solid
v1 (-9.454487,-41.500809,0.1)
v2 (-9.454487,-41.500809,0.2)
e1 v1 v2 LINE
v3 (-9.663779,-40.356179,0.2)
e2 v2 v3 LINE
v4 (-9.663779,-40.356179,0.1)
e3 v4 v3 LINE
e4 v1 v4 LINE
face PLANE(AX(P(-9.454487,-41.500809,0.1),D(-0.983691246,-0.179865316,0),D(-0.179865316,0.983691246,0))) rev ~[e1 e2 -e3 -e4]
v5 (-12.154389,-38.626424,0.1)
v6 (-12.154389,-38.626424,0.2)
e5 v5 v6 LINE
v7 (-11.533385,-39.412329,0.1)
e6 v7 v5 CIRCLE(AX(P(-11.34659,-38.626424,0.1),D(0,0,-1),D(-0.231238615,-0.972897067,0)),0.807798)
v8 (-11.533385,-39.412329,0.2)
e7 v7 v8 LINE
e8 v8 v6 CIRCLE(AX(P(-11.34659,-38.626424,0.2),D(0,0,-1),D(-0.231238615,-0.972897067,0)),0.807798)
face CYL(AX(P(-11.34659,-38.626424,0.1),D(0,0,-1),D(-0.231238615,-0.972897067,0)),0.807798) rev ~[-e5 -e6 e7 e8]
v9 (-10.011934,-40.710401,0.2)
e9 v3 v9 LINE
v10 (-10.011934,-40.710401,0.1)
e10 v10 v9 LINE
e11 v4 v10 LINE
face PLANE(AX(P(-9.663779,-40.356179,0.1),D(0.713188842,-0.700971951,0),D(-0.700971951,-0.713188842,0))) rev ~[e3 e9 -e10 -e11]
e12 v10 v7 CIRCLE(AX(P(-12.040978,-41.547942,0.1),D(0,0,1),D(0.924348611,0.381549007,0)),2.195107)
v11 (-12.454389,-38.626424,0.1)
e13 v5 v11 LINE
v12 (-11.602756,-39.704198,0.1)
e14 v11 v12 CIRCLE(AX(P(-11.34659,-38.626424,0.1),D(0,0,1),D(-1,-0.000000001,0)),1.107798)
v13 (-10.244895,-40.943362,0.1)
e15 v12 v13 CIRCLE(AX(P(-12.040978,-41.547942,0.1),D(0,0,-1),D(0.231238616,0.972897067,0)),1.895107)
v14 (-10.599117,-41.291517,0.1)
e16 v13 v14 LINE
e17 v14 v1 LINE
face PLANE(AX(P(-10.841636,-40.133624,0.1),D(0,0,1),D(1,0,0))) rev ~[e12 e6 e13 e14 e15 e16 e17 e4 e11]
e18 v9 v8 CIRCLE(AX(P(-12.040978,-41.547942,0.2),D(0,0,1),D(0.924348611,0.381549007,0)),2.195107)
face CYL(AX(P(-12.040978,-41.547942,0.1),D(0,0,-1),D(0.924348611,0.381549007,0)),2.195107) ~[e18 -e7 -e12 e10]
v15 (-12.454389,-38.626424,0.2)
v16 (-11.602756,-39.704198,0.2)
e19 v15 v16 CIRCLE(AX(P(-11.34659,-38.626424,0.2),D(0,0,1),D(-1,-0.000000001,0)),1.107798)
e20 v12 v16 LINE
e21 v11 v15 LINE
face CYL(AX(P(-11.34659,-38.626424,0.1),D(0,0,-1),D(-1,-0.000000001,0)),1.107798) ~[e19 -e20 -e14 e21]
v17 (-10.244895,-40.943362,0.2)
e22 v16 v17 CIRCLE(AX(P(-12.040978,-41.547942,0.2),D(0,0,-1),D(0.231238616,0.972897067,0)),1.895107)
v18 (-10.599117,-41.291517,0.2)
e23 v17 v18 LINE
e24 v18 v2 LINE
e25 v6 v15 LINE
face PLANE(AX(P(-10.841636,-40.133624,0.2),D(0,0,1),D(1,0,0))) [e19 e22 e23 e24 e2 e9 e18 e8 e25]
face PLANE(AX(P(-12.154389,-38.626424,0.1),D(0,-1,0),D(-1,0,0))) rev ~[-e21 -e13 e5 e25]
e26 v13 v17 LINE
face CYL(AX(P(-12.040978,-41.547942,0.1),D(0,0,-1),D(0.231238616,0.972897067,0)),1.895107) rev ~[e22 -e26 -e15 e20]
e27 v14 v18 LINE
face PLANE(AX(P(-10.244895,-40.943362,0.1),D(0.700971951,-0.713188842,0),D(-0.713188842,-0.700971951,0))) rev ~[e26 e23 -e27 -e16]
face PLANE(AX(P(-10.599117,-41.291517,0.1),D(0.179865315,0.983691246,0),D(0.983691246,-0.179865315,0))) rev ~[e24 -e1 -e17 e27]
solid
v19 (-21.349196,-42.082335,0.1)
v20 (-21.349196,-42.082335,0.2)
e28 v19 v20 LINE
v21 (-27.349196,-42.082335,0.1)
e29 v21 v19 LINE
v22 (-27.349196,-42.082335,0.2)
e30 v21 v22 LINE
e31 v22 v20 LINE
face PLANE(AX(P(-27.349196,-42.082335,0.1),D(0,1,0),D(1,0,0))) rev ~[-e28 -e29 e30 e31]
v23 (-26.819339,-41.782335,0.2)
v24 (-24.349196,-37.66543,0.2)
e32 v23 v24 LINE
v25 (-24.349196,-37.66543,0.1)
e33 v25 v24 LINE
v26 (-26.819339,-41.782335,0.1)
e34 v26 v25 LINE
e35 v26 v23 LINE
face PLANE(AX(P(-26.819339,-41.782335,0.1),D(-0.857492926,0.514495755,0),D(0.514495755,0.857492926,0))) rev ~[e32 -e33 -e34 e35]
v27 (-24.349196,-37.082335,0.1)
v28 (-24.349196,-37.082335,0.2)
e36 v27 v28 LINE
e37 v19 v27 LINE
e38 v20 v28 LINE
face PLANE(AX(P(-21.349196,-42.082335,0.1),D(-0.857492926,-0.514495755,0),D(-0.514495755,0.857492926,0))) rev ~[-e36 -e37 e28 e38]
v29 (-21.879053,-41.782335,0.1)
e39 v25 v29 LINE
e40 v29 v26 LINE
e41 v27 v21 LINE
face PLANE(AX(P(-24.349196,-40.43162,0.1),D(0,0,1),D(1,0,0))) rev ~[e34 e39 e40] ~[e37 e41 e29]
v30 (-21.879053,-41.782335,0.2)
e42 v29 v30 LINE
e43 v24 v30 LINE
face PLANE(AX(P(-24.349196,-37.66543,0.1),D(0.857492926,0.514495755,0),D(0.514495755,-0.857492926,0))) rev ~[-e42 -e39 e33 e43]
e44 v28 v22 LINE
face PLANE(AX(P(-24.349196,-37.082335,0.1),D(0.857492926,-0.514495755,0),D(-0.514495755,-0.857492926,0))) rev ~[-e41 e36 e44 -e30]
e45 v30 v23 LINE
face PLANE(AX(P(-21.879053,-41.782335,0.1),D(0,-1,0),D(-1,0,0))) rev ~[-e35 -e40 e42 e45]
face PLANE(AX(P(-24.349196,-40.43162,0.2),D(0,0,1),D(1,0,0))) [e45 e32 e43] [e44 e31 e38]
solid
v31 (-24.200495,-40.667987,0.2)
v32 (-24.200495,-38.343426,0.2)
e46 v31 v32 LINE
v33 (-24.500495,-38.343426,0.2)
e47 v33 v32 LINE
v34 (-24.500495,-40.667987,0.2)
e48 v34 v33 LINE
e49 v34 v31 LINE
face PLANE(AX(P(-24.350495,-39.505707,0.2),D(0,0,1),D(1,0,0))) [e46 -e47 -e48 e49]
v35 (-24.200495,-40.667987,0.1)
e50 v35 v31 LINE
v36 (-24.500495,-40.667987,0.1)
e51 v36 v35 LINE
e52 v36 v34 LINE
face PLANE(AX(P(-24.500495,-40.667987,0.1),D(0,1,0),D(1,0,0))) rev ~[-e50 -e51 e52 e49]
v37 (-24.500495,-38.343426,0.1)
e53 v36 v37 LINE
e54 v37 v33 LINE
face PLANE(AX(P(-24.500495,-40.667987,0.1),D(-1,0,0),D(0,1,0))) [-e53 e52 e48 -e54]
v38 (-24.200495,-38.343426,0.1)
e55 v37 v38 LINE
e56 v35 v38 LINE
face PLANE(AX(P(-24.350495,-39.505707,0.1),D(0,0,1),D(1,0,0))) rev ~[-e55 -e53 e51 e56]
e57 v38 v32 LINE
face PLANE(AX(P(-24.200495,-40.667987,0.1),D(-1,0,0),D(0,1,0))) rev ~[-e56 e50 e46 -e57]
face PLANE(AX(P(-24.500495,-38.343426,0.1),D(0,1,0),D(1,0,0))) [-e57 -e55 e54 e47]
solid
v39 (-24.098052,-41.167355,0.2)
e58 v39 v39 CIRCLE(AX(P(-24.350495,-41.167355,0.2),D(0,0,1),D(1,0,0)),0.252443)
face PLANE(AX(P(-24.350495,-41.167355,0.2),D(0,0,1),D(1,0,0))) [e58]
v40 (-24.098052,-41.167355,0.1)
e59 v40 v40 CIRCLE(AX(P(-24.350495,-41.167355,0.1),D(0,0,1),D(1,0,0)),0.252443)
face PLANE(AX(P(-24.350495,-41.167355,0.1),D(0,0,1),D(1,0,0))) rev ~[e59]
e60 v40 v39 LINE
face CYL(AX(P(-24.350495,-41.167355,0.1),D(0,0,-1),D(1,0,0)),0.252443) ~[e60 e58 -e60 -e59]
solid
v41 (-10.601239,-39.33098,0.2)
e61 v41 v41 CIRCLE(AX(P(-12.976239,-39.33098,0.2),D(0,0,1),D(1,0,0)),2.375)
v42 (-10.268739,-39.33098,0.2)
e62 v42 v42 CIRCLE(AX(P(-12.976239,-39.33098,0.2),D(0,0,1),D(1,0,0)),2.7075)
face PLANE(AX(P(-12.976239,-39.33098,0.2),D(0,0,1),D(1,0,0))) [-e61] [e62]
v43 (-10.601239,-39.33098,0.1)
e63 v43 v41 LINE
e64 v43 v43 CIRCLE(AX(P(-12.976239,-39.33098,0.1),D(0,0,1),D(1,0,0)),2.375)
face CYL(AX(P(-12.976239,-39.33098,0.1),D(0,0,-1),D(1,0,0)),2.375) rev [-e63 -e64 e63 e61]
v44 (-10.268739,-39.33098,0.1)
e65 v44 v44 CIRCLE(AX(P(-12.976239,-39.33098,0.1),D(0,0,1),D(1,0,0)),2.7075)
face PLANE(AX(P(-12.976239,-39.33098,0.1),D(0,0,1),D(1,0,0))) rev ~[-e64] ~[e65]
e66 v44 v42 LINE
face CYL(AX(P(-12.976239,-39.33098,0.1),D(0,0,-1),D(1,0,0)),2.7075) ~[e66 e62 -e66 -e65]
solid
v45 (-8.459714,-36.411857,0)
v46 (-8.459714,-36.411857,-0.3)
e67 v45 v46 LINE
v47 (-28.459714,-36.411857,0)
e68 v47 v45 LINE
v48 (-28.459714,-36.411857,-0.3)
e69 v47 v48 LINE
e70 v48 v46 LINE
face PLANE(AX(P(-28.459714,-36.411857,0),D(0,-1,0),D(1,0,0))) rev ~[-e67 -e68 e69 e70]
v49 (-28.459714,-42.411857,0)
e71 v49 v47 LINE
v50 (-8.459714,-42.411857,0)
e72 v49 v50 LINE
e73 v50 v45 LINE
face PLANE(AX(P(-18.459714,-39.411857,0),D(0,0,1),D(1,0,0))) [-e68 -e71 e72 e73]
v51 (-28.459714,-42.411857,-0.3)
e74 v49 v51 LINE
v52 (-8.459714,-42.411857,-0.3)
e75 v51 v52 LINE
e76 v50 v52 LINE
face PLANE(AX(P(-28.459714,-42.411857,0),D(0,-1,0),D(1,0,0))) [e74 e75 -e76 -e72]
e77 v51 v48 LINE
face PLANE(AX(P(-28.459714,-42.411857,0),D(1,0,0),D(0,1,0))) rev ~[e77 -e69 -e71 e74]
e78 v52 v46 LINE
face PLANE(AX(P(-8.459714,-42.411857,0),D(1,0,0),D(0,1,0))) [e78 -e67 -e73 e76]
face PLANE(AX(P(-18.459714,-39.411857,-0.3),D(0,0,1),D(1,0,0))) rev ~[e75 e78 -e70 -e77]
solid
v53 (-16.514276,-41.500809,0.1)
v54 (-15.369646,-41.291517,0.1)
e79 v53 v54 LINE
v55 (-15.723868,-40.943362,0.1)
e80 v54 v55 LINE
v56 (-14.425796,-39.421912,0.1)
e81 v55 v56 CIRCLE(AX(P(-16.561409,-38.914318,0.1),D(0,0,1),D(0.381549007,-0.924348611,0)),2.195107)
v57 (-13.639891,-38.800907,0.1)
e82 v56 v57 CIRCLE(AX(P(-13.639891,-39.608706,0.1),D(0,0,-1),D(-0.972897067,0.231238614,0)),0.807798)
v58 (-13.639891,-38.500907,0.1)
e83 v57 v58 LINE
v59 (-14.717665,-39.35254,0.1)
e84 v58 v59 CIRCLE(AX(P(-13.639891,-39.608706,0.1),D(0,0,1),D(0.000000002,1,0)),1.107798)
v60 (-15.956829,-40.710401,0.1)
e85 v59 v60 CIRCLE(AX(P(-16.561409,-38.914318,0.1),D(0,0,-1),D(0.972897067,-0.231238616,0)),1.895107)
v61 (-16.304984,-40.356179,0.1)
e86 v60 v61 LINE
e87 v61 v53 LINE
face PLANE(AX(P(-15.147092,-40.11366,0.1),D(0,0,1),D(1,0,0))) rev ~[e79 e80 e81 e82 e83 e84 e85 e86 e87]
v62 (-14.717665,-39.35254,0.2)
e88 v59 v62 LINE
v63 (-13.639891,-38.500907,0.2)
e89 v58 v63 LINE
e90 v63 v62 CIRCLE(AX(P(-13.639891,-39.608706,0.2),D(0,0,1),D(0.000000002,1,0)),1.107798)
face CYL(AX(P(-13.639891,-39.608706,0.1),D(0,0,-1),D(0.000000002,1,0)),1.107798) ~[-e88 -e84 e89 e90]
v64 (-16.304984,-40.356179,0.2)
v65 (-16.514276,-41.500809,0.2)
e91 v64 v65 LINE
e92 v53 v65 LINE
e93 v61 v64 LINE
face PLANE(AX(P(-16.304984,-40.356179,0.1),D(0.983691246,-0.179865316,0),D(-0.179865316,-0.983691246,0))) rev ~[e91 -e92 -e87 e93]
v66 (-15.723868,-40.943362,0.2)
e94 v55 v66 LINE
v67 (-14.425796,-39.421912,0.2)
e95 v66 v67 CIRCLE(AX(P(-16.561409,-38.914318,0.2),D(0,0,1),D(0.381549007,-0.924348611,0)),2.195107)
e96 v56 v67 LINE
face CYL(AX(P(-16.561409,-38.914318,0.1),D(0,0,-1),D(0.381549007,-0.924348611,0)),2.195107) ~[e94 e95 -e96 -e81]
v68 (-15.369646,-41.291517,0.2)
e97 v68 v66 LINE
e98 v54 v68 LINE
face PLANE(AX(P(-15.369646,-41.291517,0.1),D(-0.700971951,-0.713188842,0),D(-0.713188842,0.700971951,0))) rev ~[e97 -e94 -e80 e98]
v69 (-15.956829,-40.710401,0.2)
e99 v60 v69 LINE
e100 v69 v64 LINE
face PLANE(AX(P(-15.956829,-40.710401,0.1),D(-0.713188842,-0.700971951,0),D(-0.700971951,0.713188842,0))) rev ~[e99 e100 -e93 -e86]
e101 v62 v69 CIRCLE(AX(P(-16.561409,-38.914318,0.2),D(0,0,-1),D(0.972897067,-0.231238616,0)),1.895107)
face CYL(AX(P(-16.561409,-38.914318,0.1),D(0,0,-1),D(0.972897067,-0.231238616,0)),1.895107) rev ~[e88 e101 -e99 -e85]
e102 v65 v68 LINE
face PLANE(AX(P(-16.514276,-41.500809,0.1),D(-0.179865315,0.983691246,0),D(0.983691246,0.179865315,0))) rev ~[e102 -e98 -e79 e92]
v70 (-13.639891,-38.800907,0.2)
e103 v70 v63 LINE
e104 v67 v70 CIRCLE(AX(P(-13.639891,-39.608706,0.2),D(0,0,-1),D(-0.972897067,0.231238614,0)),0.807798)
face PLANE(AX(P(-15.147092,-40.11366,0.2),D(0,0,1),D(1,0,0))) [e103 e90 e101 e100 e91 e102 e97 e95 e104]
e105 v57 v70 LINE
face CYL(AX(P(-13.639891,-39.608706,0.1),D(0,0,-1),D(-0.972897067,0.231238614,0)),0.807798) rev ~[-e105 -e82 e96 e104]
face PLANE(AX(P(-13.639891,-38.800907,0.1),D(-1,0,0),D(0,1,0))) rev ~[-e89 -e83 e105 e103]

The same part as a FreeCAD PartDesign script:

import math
import FreeCAD as App
import Part
import Sketcher
from FreeCAD import Vector


def add_polygon(sketch, points):
    """Adds a closed chain of lines whose ends are joined by coincident constraints."""
    first, n = sketch.GeometryCount, len(points)
    for a, b in zip(points, points[1:] + points[:1]):
        sketch.addGeometry(Part.LineSegment(App.Vector(*a, 0), App.Vector(*b, 0)), False)
    for i in range(n):
        sketch.addConstraint(Sketcher.Constraint("Coincident", first + i, 2, first + (i + 1) % n, 1))

doc = App.newDocument("Part")
body = doc.addObject("PartDesign::Body", "Body")

sketch1 = body.newObject("Sketcher::SketchObject", "Sketch")
sketch1.AttachmentSupport = (doc.getObject("XY_Plane"), [""])
sketch1.MapMode = "FlatFace"
add_polygon(sketch1, [(-28, -36), (-28, -42), (-8, -42), (-8, -36)])
sketch1.addConstraint(Sketcher.Constraint("Vertical", 0))
sketch1.addConstraint(Sketcher.Constraint("Horizontal", 1))
sketch1.addConstraint(Sketcher.Constraint("Vertical", 2))
sketch1.addConstraint(Sketcher.Constraint("Horizontal", 3))
sketch1.addConstraint(Sketcher.Constraint("DistanceX", 1, 1, 1, 2, 20.0))
sketch1.addConstraint(Sketcher.Constraint("DistanceY", 0, 2, 0, 1, 6.0))
sketch1.addConstraint(Sketcher.Constraint("DistanceX", 0, 2, -1, 1, 28.459714))
sketch1.addConstraint(Sketcher.Constraint("DistanceY", 0, 2, -1, 1, 42.411857))
pad1 = body.newObject("PartDesign::Pad", "Pad")
pad1.Profile = sketch1
pad1.Length = 0.3
pad1.Reversed = True
body2 = doc.addObject("PartDesign::Body", "Body001")

sketch2 = body2.newObject("Sketcher::SketchObject", "Sketch001")
sketch2.AttachmentSupport = (doc.getObject("XY_Plane001"), [""])
sketch2.MapMode = "FlatFace"
sketch2.AttachmentOffset = App.Placement(Vector(0, 0, 0.1), App.Rotation())
add_polygon(sketch2, [(-27.3, -42.1), (-21.3, -42.1), (-24.3, -37.1)])
add_polygon(sketch2, [(-21.9, -41.8), (-26.8, -41.8), (-24.3, -37.7)])
sketch2.addConstraint(Sketcher.Constraint("Horizontal", 0))
sketch2.addConstraint(Sketcher.Constraint("Horizontal", 3))
sketch2.addConstraint(Sketcher.Constraint("Parallel", 2, 4))
sketch2.addConstraint(Sketcher.Constraint("Parallel", 1, 5))
sketch2.addConstraint(Sketcher.Constraint("Vertical", 1, 2, 4, 2))
sketch2.addConstraint(Sketcher.Constraint("Equal", 1, 2))
sketch2.addConstraint(Sketcher.Constraint("DistanceX", 0, 1, 0, 2, 6.0))
sketch2.addConstraint(Sketcher.Constraint("DistanceY", 0, 2, 1, 2, 5.0))
sketch2.addConstraint(Sketcher.Constraint("DistanceY", 2, 2, 3, 2, 0.3))
sketch2.addConstraint(Sketcher.Constraint("DistanceX", 3, 2, 3, 1, 4.940286))
sketch2.addConstraint(Sketcher.Constraint("DistanceX", 3, 2, -1, 1, 26.819339))
sketch2.addConstraint(Sketcher.Constraint("DistanceY", 4, 2, -1, 1, 37.66543))
pad2 = body2.newObject("PartDesign::Pad", "Pad001")
pad2.Profile = sketch2
pad2.Length = 0.1
body3 = doc.addObject("PartDesign::Body", "Body002")

sketch3 = body3.newObject("Sketcher::SketchObject", "Sketch002")
sketch3.AttachmentSupport = (doc.getObject("XY_Plane002"), [""])
sketch3.MapMode = "FlatFace"
sketch3.AttachmentOffset = App.Placement(Vector(0, 0, 0.1), App.Rotation())
sketch3.addGeometry(Part.Circle(Vector(-24.35, -41.17, 0), Vector(0, 0, 1), 0.25), False)
sketch3.addConstraint(Sketcher.Constraint("Diameter", 0, 0.504886))
sketch3.addConstraint(Sketcher.Constraint("DistanceX", 0, 3, -1, 1, 24.350495))
sketch3.addConstraint(Sketcher.Constraint("DistanceY", 0, 3, -1, 1, 41.167355))
pad3 = body3.newObject("PartDesign::Pad", "Pad002")
pad3.Profile = sketch3
pad3.Length = 0.1
body4 = doc.addObject("PartDesign::Body", "Body003")

sketch4 = body4.newObject("Sketcher::SketchObject", "Sketch003")
sketch4.AttachmentSupport = (doc.getObject("XY_Plane003"), [""])
sketch4.MapMode = "FlatFace"
sketch4.AttachmentOffset = App.Placement(Vector(0, 0, 0.1), App.Rotation())
add_polygon(sketch4, [(-24.5, -38.34), (-24.5, -40.67), (-24.2, -40.67), (-24.2, -38.34)])
sketch4.addConstraint(Sketcher.Constraint("Vertical", 0))
sketch4.addConstraint(Sketcher.Constraint("Horizontal", 1))
sketch4.addConstraint(Sketcher.Constraint("Vertical", 2))
sketch4.addConstraint(Sketcher.Constraint("Horizontal", 3))
sketch4.addConstraint(Sketcher.Constraint("DistanceX", 1, 1, 1, 2, 0.3))
sketch4.addConstraint(Sketcher.Constraint("DistanceY", 0, 2, 0, 1, 2.324561))
sketch4.addConstraint(Sketcher.Constraint("DistanceX", 0, 2, -1, 1, 24.500495))
sketch4.addConstraint(Sketcher.Constraint("DistanceY", 0, 2, -1, 1, 40.667987))
pad4 = body4.newObject("PartDesign::Pad", "Pad003")
pad4.Profile = sketch4
pad4.Length = 0.1
body5 = doc.addObject("PartDesign::Body", "Body004")

sketch5 = body5.newObject("Sketcher::SketchObject", "Sketch004")
sketch5.AttachmentSupport = (doc.getObject("XY_Plane004"), [""])
sketch5.MapMode = "FlatFace"
sketch5.AttachmentOffset = App.Placement(Vector(0, 0, 0.1), App.Rotation())
sketch5.addGeometry(Part.Circle(Vector(-13, -39.3, 0), Vector(0, 0, 1), 2.7), False)
sketch5.addGeometry(Part.Circle(Vector(-13, -39.3, 0), Vector(0, 0, 1), 2.4), False)
sketch5.addConstraint(Sketcher.Constraint("Coincident", 1, 3, 0, 3))
sketch5.addConstraint(Sketcher.Constraint("Diameter", 1, 4.75))
sketch5.addConstraint(Sketcher.Constraint("Diameter", 0, 5.415))
sketch5.addConstraint(Sketcher.Constraint("DistanceX", 0, 3, -1, 1, 12.976239))
sketch5.addConstraint(Sketcher.Constraint("DistanceY", 0, 3, -1, 1, 39.33098))
pad5 = body5.newObject("PartDesign::Pad", "Pad004")
pad5.Profile = sketch5
pad5.Length = 0.1
body6 = doc.addObject("PartDesign::Body", "Body005")

sketch6 = body6.newObject("Sketcher::SketchObject", "Sketch005")
sketch6.AttachmentSupport = (doc.getObject("XY_Plane005"), [""])
sketch6.MapMode = "FlatFace"
sketch6.AttachmentOffset = App.Placement(Vector(0, 0, 0.1), App.Rotation())
sketch6.addGeometry(Part.LineSegment(Vector(-10.24, -40.94, 0), Vector(-10.6, -41.29, 0)), False)
sketch6.addGeometry(Part.LineSegment(Vector(-10.6, -41.29, 0), Vector(-9.45, -41.5, 0)), False)
sketch6.addGeometry(Part.LineSegment(Vector(-9.45, -41.5, 0), Vector(-9.66, -40.36, 0)), False)
sketch6.addGeometry(Part.LineSegment(Vector(-9.66, -40.36, 0), Vector(-10.01, -40.71, 0)), False)
sketch6.addGeometry(Part.ArcOfCircle(Part.Circle(Vector(-12.04, -41.55, 0), Vector(0, 0, 1), 2.2), math.radians(22), math.radians(77)), False)
sketch6.addGeometry(Part.ArcOfCircle(Part.Circle(Vector(-11.35, -38.63, 0), Vector(0, 0, 1), 0.81), math.radians(-180), math.radians(-103)), False)
sketch6.addGeometry(Part.LineSegment(Vector(-12.15, -38.63, 0), Vector(-12.45, -38.63, 0)), False)
sketch6.addGeometry(Part.ArcOfCircle(Part.Circle(Vector(-11.35, -38.63, 0), Vector(0, 0, 1), 1.11), math.radians(-180), math.radians(-103)), False)
sketch6.addGeometry(Part.ArcOfCircle(Part.Circle(Vector(-12.04, -41.55, 0), Vector(0, 0, 1), 1.9), math.radians(19), math.radians(77)), False)
sketch6.addConstraint(Sketcher.Constraint("Coincident", 0, 2, 1, 1))
sketch6.addConstraint(Sketcher.Constraint("Coincident", 1, 2, 2, 1))
sketch6.addConstraint(Sketcher.Constraint("Coincident", 2, 2, 3, 1))
sketch6.addConstraint(Sketcher.Constraint("Coincident", 3, 2, 4, 1))
sketch6.addConstraint(Sketcher.Constraint("Tangent", 4, 2, 5, 2))
sketch6.addConstraint(Sketcher.Constraint("Coincident", 5, 1, 6, 1))
sketch6.addConstraint(Sketcher.Constraint("Coincident", 6, 2, 7, 1))
sketch6.addConstraint(Sketcher.Constraint("Tangent", 7, 2, 8, 2))
sketch6.addConstraint(Sketcher.Constraint("Coincident", 8, 1, 0, 1))
sketch6.addConstraint(Sketcher.Constraint("Horizontal", 6))
sketch6.addConstraint(Sketcher.Constraint("Coincident", 7, 3, 5, 3))
sketch6.addConstraint(Sketcher.Constraint("Coincident", 8, 3, 4, 3))
sketch6.addConstraint(Sketcher.Constraint("Horizontal", 7, 3, 5, 1))
sketch6.addConstraint(Sketcher.Constraint("Equal", 1, 2))
sketch6.addConstraint(Sketcher.Constraint("Equal", 0, 3))
sketch6.addConstraint(Sketcher.Constraint("DistanceX", 6, 2, 6, 1, 0.3))
sketch6.addConstraint(Sketcher.Constraint("Radius", 5, 0.807798))
sketch6.addConstraint(Sketcher.Constraint("Radius", 4, 2.195107))
sketch6.addConstraint(Sketcher.Constraint("DistanceY", 3, 2, -1, 1, 40.710401))
sketch6.addConstraint(Sketcher.Constraint("DistanceX", 4, 3, 2, 2, 2.377199))
sketch6.addConstraint(Sketcher.Constraint("DistanceX", 4, 3, -1, 1, 12.040978))
sketch6.addConstraint(Sketcher.Constraint("DistanceX", 5, 3, -1, 1, 11.34659))
sketch6.addConstraint(Sketcher.Constraint("DistanceY", 1, 2, -1, 1, 41.500809))
sketch6.addConstraint(Sketcher.Constraint("DistanceY", 2, 2, -1, 1, 40.356179))
sketch6.addConstraint(Sketcher.Constraint("DistanceY", 4, 2, -1, 1, 39.412329))
sketch6.addConstraint(Sketcher.Constraint("DistanceX", 4, 3, 0, 2, 1.441861))
sketch6.addConstraint(Sketcher.Constraint("DistanceX", 0, 2, 1, 2, 1.14463))
pad6 = body6.newObject("PartDesign::Pad", "Pad005")
pad6.Profile = sketch6
pad6.Length = 0.1
body7 = doc.addObject("PartDesign::Body", "Body006")

sketch7 = body7.newObject("Sketcher::SketchObject", "Sketch006")
sketch7.AttachmentSupport = (doc.getObject("XY_Plane006"), [""])
sketch7.MapMode = "FlatFace"
sketch7.AttachmentOffset = App.Placement(Vector(0, 0, 0.1), App.Rotation())
sketch7.addGeometry(Part.LineSegment(Vector(-15.96, -40.71, 0), Vector(-16.3, -40.36, 0)), False)
sketch7.addGeometry(Part.LineSegment(Vector(-16.3, -40.36, 0), Vector(-16.51, -41.5, 0)), False)
sketch7.addGeometry(Part.LineSegment(Vector(-16.51, -41.5, 0), Vector(-15.37, -41.29, 0)), False)
sketch7.addGeometry(Part.LineSegment(Vector(-15.37, -41.29, 0), Vector(-15.72, -40.94, 0)), False)
sketch7.addGeometry(Part.ArcOfCircle(Part.Circle(Vector(-16.56, -38.91, 0), Vector(0, 0, 1), 2.2), math.radians(-68), math.radians(-13)), False)
sketch7.addGeometry(Part.ArcOfCircle(Part.Circle(Vector(-13.64, -39.61, 0), Vector(0, 0, 1), 0.81), math.radians(90), math.radians(167)), False)
sketch7.addGeometry(Part.LineSegment(Vector(-13.64, -38.8, 0), Vector(-13.64, -38.5, 0)), False)
sketch7.addGeometry(Part.ArcOfCircle(Part.Circle(Vector(-13.64, -39.61, 0), Vector(0, 0, 1), 1.11), math.radians(90), math.radians(167)), False)
sketch7.addGeometry(Part.ArcOfCircle(Part.Circle(Vector(-16.56, -38.91, 0), Vector(0, 0, 1), 1.9), math.radians(-71), math.radians(-13)), False)
sketch7.addConstraint(Sketcher.Constraint("Coincident", 0, 2, 1, 1))
sketch7.addConstraint(Sketcher.Constraint("Coincident", 1, 2, 2, 1))
sketch7.addConstraint(Sketcher.Constraint("Coincident", 2, 2, 3, 1))
sketch7.addConstraint(Sketcher.Constraint("Coincident", 3, 2, 4, 1))
sketch7.addConstraint(Sketcher.Constraint("Tangent", 4, 2, 5, 2))
sketch7.addConstraint(Sketcher.Constraint("Coincident", 5, 1, 6, 1))
sketch7.addConstraint(Sketcher.Constraint("Coincident", 6, 2, 7, 1))
sketch7.addConstraint(Sketcher.Constraint("Tangent", 7, 2, 8, 2))
sketch7.addConstraint(Sketcher.Constraint("Coincident", 8, 1, 0, 1))
sketch7.addConstraint(Sketcher.Constraint("Vertical", 6))
sketch7.addConstraint(Sketcher.Constraint("Coincident", 7, 3, 5, 3))
sketch7.addConstraint(Sketcher.Constraint("Coincident", 8, 3, 4, 3))
sketch7.addConstraint(Sketcher.Constraint("Vertical", 7, 3, 5, 1))
sketch7.addConstraint(Sketcher.Constraint("Equal", 1, 2))
sketch7.addConstraint(Sketcher.Constraint("Equal", 0, 3))
sketch7.addConstraint(Sketcher.Constraint("DistanceY", 6, 1, 6, 2, 0.3))
sketch7.addConstraint(Sketcher.Constraint("Radius", 5, 0.807798))
sketch7.addConstraint(Sketcher.Constraint("Radius", 4, 2.195107))
sketch7.addConstraint(Sketcher.Constraint("DistanceY", 8, 1, -1, 1, 40.710401))
sketch7.addConstraint(Sketcher.Constraint("DistanceY", 2, 2, 4, 3, 2.377199))
sketch7.addConstraint(Sketcher.Constraint("DistanceX", 4, 3, -1, 1, 16.561409))
sketch7.addConstraint(Sketcher.Constraint("DistanceX", 5, 3, -1, 1, 13.639891))
sketch7.addConstraint(Sketcher.Constraint("DistanceY", 0, 2, -1, 1, 40.356179))
sketch7.addConstraint(Sketcher.Constraint("DistanceY", 1, 2, -1, 1, 41.500809))
sketch7.addConstraint(Sketcher.Constraint("DistanceX", 3, 2, -1, 1, 15.723868))
sketch7.addConstraint(Sketcher.Constraint("DistanceY", 4, 2, -1, 1, 39.421912))
sketch7.addConstraint(Sketcher.Constraint("DistanceX", 1, 2, 2, 2, 1.14463))
pad7 = body7.newObject("PartDesign::Pad", "Pad006")
pad7.Profile = sketch7
pad7.Length = 0.1

doc.recompute()
